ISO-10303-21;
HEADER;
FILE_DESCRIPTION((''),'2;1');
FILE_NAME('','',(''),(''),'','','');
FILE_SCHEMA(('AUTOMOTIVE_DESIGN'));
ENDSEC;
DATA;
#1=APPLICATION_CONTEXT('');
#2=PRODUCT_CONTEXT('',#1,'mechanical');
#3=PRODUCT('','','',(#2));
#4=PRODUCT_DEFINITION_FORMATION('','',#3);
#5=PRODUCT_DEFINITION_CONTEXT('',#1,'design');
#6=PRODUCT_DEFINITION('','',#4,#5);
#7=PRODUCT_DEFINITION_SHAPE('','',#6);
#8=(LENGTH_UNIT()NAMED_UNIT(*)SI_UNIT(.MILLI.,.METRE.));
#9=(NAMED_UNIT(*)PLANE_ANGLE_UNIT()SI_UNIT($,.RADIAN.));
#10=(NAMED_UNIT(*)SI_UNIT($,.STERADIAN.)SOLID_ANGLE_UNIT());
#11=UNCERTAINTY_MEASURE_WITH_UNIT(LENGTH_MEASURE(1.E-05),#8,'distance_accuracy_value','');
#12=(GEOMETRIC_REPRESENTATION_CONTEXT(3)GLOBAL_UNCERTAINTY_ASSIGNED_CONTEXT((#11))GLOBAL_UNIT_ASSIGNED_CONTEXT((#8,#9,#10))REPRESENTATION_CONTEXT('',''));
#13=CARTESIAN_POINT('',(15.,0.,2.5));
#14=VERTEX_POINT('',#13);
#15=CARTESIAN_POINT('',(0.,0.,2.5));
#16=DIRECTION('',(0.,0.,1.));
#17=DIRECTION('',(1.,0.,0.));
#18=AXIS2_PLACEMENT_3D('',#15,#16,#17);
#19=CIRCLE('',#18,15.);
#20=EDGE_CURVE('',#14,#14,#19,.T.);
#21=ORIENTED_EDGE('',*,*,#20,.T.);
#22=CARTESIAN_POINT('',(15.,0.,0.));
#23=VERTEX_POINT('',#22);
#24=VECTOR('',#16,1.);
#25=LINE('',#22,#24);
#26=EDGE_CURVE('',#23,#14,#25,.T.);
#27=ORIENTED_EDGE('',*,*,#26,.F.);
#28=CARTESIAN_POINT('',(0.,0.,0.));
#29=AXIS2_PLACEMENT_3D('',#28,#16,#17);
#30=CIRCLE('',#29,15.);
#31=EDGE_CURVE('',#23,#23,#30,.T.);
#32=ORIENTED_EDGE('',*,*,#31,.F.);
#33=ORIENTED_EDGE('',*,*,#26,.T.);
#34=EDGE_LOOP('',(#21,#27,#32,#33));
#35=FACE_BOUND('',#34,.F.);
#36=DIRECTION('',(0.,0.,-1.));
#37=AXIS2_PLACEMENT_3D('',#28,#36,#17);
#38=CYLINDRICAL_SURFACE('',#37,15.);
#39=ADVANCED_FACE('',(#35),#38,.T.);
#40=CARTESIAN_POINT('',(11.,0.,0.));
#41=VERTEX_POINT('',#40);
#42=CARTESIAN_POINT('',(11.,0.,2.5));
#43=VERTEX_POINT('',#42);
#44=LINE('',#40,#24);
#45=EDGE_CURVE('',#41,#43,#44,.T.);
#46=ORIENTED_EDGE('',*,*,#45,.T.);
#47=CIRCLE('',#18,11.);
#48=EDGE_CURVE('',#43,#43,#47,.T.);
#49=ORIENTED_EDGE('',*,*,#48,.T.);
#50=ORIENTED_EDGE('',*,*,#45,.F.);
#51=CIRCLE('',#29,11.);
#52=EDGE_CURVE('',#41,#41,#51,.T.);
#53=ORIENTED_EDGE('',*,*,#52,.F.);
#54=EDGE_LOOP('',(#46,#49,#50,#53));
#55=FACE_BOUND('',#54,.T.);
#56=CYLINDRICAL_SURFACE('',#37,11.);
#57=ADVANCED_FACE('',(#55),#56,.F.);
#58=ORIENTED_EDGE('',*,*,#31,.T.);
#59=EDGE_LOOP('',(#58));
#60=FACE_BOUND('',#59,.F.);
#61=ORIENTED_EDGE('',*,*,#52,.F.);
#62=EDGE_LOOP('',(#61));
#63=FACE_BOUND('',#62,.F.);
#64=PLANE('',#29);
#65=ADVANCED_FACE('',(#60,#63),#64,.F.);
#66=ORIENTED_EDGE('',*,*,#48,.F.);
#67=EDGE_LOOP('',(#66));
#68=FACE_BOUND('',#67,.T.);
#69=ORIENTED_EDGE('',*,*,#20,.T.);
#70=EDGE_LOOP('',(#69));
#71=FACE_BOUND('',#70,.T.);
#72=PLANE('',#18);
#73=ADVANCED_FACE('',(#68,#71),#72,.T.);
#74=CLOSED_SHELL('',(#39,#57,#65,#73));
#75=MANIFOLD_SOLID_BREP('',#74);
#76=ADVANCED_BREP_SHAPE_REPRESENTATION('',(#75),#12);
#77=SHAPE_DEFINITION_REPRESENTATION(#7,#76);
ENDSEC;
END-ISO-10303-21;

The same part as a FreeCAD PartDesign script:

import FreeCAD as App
import Part
import Sketcher
Q = App.Units.Quantity

doc = App.newDocument("Part")
params = doc.addObject("Spreadsheet::Sheet", "Params")
for row, (alias, value) in enumerate([
    ("sketch1_diameter", "30 mm"),
    ("sketch1_diameter2", "22 mm"),
    ("pad1_length", "2.5 mm"),
], start=1):
    params.set(f"A{row}", alias)
    params.set(f"B{row}", "=" + value)
    params.setAlias(f"B{row}", alias)

body = doc.addObject("PartDesign::Body", "Body")

sketch1 = body.newObject("Sketcher::SketchObject", "Sketch")
sketch1.AttachmentSupport = (doc.getObject("XY_Plane"), [""])
sketch1.MapMode = "FlatFace"
sketch1.addGeometry([
    Part.Circle(App.Vector(0, 0, 0), App.Vector(0, 0, 1), 15),
    Part.Circle(App.Vector(0, 0, 0), App.Vector(0, 0, 1), 11),
], False)
sketch1.addConstraint([
    Sketcher.Constraint("Coincident", 0, 3, -1, 1),
    Sketcher.Constraint("Coincident", 1, 3, -1, 1),
    Sketcher.Constraint("Diameter", 0, Q("30 mm")),
    Sketcher.Constraint("Diameter", 1, Q("22 mm")),
])
sketch1.setExpression("Constraints[2]", "Params.sketch1_diameter")
sketch1.setExpression("Constraints[3]", "Params.sketch1_diameter2")
pad1 = body.newObject("PartDesign::Pad", "Pad")
pad1.Profile = sketch1
pad1.setExpression("Length", "Params.pad1_length")

doc.recompute()
